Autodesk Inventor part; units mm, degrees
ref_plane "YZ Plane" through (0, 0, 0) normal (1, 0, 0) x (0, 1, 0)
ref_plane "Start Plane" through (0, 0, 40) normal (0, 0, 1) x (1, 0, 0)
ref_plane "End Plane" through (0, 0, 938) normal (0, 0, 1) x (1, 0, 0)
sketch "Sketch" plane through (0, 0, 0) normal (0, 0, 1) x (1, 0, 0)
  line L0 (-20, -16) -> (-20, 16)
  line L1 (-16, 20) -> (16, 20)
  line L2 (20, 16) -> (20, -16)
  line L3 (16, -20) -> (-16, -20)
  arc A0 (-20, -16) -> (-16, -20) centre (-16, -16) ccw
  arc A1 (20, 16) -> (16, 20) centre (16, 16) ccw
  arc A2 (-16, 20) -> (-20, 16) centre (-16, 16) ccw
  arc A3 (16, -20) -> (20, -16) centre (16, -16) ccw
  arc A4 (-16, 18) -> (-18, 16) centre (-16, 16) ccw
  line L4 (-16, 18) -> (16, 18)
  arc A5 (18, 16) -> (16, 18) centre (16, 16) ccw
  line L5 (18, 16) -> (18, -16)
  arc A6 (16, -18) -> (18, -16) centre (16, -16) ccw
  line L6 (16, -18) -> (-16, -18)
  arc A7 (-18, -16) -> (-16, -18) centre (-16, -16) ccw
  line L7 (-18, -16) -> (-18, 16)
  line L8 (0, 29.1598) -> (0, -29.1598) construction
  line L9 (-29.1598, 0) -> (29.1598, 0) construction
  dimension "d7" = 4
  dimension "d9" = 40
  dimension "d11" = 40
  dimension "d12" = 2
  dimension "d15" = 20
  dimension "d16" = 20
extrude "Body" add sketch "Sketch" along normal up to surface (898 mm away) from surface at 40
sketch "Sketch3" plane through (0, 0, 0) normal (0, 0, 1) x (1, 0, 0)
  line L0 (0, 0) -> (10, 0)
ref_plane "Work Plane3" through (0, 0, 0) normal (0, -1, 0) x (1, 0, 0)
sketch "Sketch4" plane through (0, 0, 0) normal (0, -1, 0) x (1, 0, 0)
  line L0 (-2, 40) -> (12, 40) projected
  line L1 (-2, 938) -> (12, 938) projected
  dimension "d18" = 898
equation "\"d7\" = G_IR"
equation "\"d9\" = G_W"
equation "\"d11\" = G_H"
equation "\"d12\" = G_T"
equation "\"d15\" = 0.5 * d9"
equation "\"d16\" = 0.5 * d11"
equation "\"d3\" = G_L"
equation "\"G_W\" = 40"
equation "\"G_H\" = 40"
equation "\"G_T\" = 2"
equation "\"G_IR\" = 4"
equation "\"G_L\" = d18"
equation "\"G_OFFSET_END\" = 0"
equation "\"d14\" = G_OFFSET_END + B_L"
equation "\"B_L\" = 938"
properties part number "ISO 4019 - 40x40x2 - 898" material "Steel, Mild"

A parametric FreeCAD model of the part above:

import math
import FreeCAD as App
import Part
import Sketcher

doc = App.newDocument("Part")
params = doc.addObject("Spreadsheet::Sheet", "Params")
for row, (alias, value) in enumerate([
    ("sketch1_radius", "4 mm"),
    ("sketch1_radius2", "2 mm"),
    ("pad1_length", "898 mm"),
], start=1):
    params.set(f"A{row}", alias)
    params.set(f"B{row}", "=" + value)
    params.setAlias(f"B{row}", alias)

body = doc.addObject("PartDesign::Body", "Body")

# Sketch on XY plane
sketch1 = body.newObject("Sketcher::SketchObject", "Sketch")
sketch1.AttachmentSupport = (doc.getObject("XY_Plane"), [""])
sketch1.MapMode = "FlatFace"
sketch1.AttachmentOffset = App.Placement(App.Vector(0, 0, 40), App.Rotation())
sketch1.addGeometry(Part.LineSegment(App.Vector(-20, 16, 0), App.Vector(-20, -16, 0)), False)
sketch1.addGeometry(Part.ArcOfCircle(Part.Circle(App.Vector(-16, -16, 0), App.Vector(0, 0, 1), 4), math.radians(180), math.radians(270)), False)
sketch1.addGeometry(Part.LineSegment(App.Vector(-16, -20, 0), App.Vector(16, -20, 0)), False)
sketch1.addGeometry(Part.ArcOfCircle(Part.Circle(App.Vector(16, -16, 0), App.Vector(0, 0, 1), 4), math.radians(-90), math.radians(0)), False)
sketch1.addGeometry(Part.LineSegment(App.Vector(20, -16, 0), App.Vector(20, 16, 0)), False)
sketch1.addGeometry(Part.ArcOfCircle(Part.Circle(App.Vector(16, 16, 0), App.Vector(0, 0, 1), 4), math.radians(0), math.radians(90)), False)
sketch1.addGeometry(Part.LineSegment(App.Vector(16, 20, 0), App.Vector(-16, 20, 0)), False)
sketch1.addGeometry(Part.ArcOfCircle(Part.Circle(App.Vector(-16, 16, 0), App.Vector(0, 0, 1), 4), math.radians(90), math.radians(180)), False)
sketch1.addGeometry(Part.ArcOfCircle(Part.Circle(App.Vector(-16, 16, 0), App.Vector(0, 0, 1), 2), math.radians(90), math.radians(180)), False)
sketch1.addGeometry(Part.LineSegment(App.Vector(-16, 18, 0), App.Vector(16, 18, 0)), False)
sketch1.addGeometry(Part.ArcOfCircle(Part.Circle(App.Vector(16, 16, 0), App.Vector(0, 0, 1), 2), math.radians(0), math.radians(90)), False)
sketch1.addGeometry(Part.LineSegment(App.Vector(18, 16, 0), App.Vector(18, -16, 0)), False)
sketch1.addGeometry(Part.ArcOfCircle(Part.Circle(App.Vector(16, -16, 0), App.Vector(0, 0, 1), 2), math.radians(-90), math.radians(0)), False)
sketch1.addGeometry(Part.LineSegment(App.Vector(16, -18, 0), App.Vector(-16, -18, 0)), False)
sketch1.addGeometry(Part.ArcOfCircle(Part.Circle(App.Vector(-16, -16, 0), App.Vector(0, 0, 1), 2), math.radians(180), math.radians(270)), False)
sketch1.addGeometry(Part.LineSegment(App.Vector(-18, -16, 0), App.Vector(-18, 16, 0)), False)
sketch1.addConstraint(Sketcher.Constraint("Tangent", 0, 2, 1, 1))
sketch1.addConstraint(Sketcher.Constraint("Tangent", 1, 2, 2, 1))
sketch1.addConstraint(Sketcher.Constraint("Tangent", 2, 2, 3, 1))
sketch1.addConstraint(Sketcher.Constraint("Tangent", 3, 2, 4, 1))
sketch1.addConstraint(Sketcher.Constraint("Tangent", 4, 2, 5, 1))
sketch1.addConstraint(Sketcher.Constraint("Tangent", 5, 2, 6, 1))
sketch1.addConstraint(Sketcher.Constraint("Tangent", 6, 2, 7, 1))
sketch1.addConstraint(Sketcher.Constraint("Tangent", 7, 2, 0, 1))
sketch1.addConstraint(Sketcher.Constraint("Tangent", 8, 1, 9, 1))
sketch1.addConstraint(Sketcher.Constraint("Tangent", 9, 2, 10, 2))
sketch1.addConstraint(Sketcher.Constraint("Tangent", 10, 1, 11, 1))
sketch1.addConstraint(Sketcher.Constraint("Tangent", 11, 2, 12, 2))
sketch1.addConstraint(Sketcher.Constraint("Tangent", 12, 1, 13, 1))
sketch1.addConstraint(Sketcher.Constraint("Tangent", 13, 2, 14, 2))
sketch1.addConstraint(Sketcher.Constraint("Tangent", 14, 1, 15, 1))
sketch1.addConstraint(Sketcher.Constraint("Tangent", 15, 2, 8, 2))
sketch1.addConstraint(Sketcher.Constraint("Vertical", 0))
sketch1.addConstraint(Sketcher.Constraint("Horizontal", 2))
sketch1.addConstraint(Sketcher.Constraint("Vertical", 4))
sketch1.addConstraint(Sketcher.Constraint("Horizontal", 6))
sketch1.addConstraint(Sketcher.Constraint("Horizontal", 9))
sketch1.addConstraint(Sketcher.Constraint("Vertical", 11))
sketch1.addConstraint(Sketcher.Constraint("Horizontal", 13))
sketch1.addConstraint(Sketcher.Constraint("Vertical", 15))
sketch1.addConstraint(Sketcher.Constraint("Coincident", 8, 3, 7, 3))
sketch1.addConstraint(Sketcher.Constraint("Coincident", 10, 3, 5, 3))
sketch1.addConstraint(Sketcher.Constraint("Coincident", 12, 3, 3, 3))
sketch1.addConstraint(Sketcher.Constraint("Equal", 1, 3))
sketch1.addConstraint(Sketcher.Constraint("Equal", 3, 5))
sketch1.addConstraint(Sketcher.Constraint("Equal", 5, 7))
sketch1.addConstraint(Sketcher.Constraint("Equal", 12, 14))
sketch1.addConstraint(Sketcher.Constraint("Symmetric", 1, 3, 5, 3, -1, 1))
sketch1.addConstraint(Sketcher.Constraint("Equal", 13, 0))
sketch1.addConstraint(Sketcher.Constraint("Radius", 1, 4.0))
sketch1.addConstraint(Sketcher.Constraint("Radius", 8, 2.0))
sketch1.addConstraint(Sketcher.Constraint("DistanceX", 0, 2, -1, 1, 20.0))
sketch1.setExpression("Constraints[33]", "Params.sketch1_radius")
sketch1.setExpression("Constraints[34]", "Params.sketch1_radius2")
pad1 = body.newObject("PartDesign::Pad", "Pad")
pad1.Profile = sketch1
pad1.setExpression("Length", "Params.pad1_length")

doc.recompute()
